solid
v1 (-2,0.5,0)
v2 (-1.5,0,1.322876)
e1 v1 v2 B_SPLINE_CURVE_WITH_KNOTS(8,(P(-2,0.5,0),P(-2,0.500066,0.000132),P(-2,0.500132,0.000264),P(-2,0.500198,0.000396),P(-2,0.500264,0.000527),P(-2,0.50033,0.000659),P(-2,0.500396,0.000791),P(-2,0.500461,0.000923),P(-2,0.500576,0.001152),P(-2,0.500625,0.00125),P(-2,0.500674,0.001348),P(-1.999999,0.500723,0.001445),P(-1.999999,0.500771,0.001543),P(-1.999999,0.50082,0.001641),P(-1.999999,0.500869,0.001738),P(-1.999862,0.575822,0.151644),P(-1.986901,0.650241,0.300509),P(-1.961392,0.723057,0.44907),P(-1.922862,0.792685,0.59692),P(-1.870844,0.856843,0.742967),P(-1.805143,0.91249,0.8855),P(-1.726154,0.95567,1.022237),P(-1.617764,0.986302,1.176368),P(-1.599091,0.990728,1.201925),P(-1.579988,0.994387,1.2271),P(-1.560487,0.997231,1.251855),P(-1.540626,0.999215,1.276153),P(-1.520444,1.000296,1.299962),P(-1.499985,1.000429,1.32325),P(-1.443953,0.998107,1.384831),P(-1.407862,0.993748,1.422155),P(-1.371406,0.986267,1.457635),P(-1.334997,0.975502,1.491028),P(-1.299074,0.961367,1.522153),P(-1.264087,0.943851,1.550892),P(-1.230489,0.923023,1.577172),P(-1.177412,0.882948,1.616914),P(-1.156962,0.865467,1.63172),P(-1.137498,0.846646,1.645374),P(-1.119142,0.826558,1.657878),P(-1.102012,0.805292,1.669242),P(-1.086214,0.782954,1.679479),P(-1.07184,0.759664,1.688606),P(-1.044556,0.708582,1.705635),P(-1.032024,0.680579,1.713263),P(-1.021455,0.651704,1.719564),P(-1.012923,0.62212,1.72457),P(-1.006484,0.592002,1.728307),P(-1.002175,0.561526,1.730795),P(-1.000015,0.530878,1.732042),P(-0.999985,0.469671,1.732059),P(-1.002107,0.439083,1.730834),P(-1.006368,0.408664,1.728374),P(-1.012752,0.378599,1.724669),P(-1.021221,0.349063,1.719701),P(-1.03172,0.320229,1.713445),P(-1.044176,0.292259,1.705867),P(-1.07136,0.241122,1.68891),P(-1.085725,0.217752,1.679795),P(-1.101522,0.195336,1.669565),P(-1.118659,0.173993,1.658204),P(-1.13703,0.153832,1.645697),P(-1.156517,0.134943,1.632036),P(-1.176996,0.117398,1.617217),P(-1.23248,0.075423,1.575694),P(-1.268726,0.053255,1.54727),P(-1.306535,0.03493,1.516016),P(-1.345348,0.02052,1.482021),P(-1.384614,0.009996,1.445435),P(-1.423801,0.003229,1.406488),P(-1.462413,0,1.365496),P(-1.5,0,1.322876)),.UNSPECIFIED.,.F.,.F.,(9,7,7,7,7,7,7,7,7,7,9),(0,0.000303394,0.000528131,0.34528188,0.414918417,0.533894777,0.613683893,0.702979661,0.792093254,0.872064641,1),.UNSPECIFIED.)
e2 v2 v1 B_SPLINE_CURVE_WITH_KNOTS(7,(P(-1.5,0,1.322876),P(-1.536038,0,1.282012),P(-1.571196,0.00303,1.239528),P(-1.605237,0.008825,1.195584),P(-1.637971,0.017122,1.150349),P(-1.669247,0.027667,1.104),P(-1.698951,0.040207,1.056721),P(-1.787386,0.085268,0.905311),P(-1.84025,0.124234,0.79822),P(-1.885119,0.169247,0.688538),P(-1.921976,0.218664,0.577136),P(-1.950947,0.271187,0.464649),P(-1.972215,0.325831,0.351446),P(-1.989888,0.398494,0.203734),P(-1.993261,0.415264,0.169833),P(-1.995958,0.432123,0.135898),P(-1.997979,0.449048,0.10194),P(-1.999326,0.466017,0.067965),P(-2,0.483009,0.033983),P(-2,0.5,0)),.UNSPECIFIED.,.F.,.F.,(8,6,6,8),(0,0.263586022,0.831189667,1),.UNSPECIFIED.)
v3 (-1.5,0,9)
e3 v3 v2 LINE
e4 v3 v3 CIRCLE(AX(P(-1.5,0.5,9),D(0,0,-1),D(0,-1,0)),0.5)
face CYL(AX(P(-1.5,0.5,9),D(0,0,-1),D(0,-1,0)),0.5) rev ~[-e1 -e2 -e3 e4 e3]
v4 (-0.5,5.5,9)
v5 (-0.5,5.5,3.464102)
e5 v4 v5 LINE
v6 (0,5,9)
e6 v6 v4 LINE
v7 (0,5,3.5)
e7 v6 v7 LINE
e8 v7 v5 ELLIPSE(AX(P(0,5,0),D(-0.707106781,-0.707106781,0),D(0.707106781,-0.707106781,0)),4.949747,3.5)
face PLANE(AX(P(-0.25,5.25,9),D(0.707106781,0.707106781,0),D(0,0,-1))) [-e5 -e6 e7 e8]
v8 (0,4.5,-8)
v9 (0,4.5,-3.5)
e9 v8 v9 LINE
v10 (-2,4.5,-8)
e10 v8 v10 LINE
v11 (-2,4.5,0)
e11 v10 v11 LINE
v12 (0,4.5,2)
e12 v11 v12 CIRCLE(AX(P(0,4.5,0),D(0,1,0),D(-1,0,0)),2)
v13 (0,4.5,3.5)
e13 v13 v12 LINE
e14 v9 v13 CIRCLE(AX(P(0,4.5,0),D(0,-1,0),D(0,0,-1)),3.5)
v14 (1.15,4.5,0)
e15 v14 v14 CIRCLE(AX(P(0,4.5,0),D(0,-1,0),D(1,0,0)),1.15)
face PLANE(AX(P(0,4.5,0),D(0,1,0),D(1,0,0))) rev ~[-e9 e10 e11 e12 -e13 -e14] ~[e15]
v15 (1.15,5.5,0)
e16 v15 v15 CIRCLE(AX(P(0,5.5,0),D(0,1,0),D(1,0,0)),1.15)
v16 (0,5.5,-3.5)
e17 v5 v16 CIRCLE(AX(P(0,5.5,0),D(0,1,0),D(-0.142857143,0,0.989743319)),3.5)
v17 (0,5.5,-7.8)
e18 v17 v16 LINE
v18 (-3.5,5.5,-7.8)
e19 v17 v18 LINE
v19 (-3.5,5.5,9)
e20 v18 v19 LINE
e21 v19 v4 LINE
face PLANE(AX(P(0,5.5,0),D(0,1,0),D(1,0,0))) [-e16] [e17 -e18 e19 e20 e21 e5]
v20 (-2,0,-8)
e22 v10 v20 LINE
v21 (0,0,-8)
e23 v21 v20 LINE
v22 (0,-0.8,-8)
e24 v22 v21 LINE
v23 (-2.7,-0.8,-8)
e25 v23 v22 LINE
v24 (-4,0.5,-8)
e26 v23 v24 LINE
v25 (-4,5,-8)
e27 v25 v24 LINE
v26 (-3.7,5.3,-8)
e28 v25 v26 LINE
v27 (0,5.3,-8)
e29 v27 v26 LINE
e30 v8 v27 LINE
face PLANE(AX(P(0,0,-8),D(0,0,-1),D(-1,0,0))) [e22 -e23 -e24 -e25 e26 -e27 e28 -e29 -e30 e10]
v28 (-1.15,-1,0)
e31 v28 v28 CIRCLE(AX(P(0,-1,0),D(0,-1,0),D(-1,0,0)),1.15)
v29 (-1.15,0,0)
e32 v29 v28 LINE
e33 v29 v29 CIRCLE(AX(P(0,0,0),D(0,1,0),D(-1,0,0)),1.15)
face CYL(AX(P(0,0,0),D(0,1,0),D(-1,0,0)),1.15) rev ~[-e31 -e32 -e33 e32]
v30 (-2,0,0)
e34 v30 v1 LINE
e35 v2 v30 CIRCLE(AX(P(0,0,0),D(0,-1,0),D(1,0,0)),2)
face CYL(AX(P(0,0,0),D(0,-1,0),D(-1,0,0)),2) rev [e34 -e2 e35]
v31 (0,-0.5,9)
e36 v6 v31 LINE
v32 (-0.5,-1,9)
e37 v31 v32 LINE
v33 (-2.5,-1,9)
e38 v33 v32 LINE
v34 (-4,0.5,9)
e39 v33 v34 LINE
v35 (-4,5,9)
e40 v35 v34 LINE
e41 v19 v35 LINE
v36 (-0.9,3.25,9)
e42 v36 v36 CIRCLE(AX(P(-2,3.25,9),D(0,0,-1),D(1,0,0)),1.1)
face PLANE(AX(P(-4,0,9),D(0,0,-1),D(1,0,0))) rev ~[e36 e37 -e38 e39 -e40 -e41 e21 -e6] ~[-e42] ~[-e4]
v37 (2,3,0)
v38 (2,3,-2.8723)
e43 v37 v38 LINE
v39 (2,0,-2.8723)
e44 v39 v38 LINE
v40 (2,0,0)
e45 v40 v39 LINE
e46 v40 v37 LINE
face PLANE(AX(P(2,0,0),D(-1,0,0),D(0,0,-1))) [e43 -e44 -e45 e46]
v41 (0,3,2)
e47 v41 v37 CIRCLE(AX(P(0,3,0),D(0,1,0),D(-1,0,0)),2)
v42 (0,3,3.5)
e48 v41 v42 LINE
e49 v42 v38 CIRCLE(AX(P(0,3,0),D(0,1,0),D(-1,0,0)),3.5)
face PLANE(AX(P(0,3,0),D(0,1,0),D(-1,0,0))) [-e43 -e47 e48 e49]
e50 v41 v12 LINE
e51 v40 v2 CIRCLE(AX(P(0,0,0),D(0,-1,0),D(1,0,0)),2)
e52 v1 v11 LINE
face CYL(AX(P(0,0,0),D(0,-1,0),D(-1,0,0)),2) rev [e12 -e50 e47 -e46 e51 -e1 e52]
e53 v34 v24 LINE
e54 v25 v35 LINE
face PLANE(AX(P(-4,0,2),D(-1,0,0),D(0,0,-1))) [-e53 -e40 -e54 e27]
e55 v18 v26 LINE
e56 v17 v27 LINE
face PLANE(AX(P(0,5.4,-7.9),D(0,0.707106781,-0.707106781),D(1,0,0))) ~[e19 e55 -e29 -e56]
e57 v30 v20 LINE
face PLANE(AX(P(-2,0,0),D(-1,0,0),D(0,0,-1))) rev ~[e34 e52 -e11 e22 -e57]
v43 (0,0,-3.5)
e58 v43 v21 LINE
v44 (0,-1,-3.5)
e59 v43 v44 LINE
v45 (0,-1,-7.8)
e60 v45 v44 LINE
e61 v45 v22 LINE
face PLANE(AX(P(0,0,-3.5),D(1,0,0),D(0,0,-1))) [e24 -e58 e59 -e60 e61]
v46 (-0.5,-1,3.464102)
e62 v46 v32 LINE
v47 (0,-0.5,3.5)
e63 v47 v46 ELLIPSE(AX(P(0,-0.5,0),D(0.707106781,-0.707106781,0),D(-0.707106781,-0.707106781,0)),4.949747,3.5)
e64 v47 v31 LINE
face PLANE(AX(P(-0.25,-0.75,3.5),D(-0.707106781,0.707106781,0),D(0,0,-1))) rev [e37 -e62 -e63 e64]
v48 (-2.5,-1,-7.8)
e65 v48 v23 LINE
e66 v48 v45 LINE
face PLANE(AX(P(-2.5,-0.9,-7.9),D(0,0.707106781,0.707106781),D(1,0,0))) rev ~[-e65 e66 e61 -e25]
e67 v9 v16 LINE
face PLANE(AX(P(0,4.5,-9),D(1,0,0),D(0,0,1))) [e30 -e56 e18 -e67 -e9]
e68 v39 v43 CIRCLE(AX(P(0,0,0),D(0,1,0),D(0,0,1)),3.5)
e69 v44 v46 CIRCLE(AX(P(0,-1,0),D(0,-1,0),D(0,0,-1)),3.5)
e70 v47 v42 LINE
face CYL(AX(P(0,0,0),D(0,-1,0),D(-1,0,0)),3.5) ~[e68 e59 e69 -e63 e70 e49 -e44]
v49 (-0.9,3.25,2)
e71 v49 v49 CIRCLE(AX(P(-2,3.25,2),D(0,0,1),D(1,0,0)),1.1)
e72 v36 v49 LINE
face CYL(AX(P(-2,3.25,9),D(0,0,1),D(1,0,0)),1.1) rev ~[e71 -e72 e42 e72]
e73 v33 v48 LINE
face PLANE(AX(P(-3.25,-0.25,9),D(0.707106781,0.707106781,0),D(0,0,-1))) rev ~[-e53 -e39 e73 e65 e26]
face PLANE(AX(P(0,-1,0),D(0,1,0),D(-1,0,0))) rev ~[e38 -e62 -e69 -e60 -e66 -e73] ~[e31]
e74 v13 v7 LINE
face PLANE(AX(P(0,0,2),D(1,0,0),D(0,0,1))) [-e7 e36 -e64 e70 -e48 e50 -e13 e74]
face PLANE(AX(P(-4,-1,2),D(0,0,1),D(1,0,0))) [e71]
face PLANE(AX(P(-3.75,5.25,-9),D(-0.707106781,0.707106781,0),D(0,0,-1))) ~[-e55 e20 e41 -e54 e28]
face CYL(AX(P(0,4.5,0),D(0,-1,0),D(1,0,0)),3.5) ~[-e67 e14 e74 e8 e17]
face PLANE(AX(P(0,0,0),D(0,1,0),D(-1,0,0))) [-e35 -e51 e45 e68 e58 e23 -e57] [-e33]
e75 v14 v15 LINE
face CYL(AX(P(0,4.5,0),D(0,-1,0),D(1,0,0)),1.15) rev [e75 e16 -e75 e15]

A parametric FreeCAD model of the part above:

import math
import FreeCAD as App
import Part
import Sketcher

V = App.Vector
Q = App.Units.Quantity


def edges_at(feature, points):
    """Names of the edges that pass closest to the given points."""
    edges = feature.Shape.Edges
    near = lambda p: min(range(len(edges)), key=lambda i: edges[i].distToShape(Part.Vertex(*p))[0])
    return sorted({f"Edge{near(p) + 1}" for p in points})


def add_polygon(sketch, points):
    """Adds a closed chain of lines whose ends are joined by coincident constraints."""
    first, n = sketch.GeometryCount, len(points)
    for a, b in zip(points, points[1:] + points[:1]):
        sketch.addGeometry(Part.LineSegment(App.Vector(*a, 0), App.Vector(*b, 0)), False)
    for i in range(n):
        sketch.addConstraint(Sketcher.Constraint("Coincident", first + i, 2, first + (i + 1) % n, 1))

doc = App.newDocument("Part")
params = doc.addObject("Spreadsheet::Sheet", "Params")
for row, (alias, value) in enumerate([
    ("sketch1_radius", "2 mm"),
    ("sketch1_radius2", "3.5 mm"),
    ("pad1_length", "3 mm"),
    ("sketch2_radius", "2 mm"),
    ("sketch2_width", "4 mm"),
    ("sketch2_height", "9 mm"),
    ("sketch2_height2", "7 mm"),
    ("pad2_length", "4.5 mm"),
    ("sketch3_diameter", "2.3 mm"),
    ("sketch3_radius", "3.5 mm"),
    ("sketch3_width", "4 mm"),
    ("pad3_length", "1 mm"),
    ("sketch4_diameter", "2.3 mm"),
    ("sketch4_radius", "3.5 mm"),
    ("sketch4_width", "4 mm"),
    ("pad4_length", "1 mm"),
    ("sketch5_diameter", "2.2 mm"),
    ("pocket1_length", "7 mm"),
    ("sketch6_diameter", "1 mm"),
    ("hole_diameter", "1 mm"),
    ("chamfer_size", "0.5 mm"),
    ("chamfer2_size", "1.5 mm"),
    ("sketch7_width", "4 mm"),
    ("sketch7_height", "6.5 mm"),
    ("pocket2_length", "1 mm"),
    ("chamfer3_size", "0.2 mm"),
], start=1):
    params.set(f"A{row}", alias)
    params.set(f"B{row}", "=" + value)
    params.setAlias(f"B{row}", alias)

body = doc.addObject("PartDesign::Body", "Body")

# Sketch on XZ plane
sketch1 = body.newObject("Sketcher::SketchObject", "Sketch")
sketch1.AttachmentSupport = (doc.getObject("XZ_Plane"), [""])
sketch1.MapMode = "FlatFace"
sketch1.addGeometry([
    Part.ArcOfCircle(Part.Circle(V(0, 0, 0), V(0, 0, 1), 2), math.radians(0), math.radians(90)),
    Part.LineSegment(V(0, 2, 0), V(0, 3.5, 0)),
    Part.ArcOfCircle(Part.Circle(V(0, 0, 0), V(0, 0, 1), 3.5), math.radians(-55), math.radians(90)),
    Part.LineSegment(V(2, -2.9, 0), V(2, 0, 0)),
], False)
sketch1.addConstraint([
    Sketcher.Constraint("Coincident", 0, 2, 1, 1),
    Sketcher.Constraint("Coincident", 1, 2, 2, 2),
    Sketcher.Constraint("Coincident", 2, 1, 3, 1),
    Sketcher.Constraint("Tangent", 3, 2, 0, 1),
    Sketcher.Constraint("Vertical", 1),
    Sketcher.Constraint("Vertical", 3),
    Sketcher.Constraint("Coincident", 0, 3, -1, 1),
    Sketcher.Constraint("Coincident", 2, 3, -1, 1),
    Sketcher.Constraint("PointOnObject", 0, 2, -2),
    Sketcher.Constraint("Radius", 0, Q("2 mm")),
    Sketcher.Constraint("Radius", 2, Q("3.5 mm")),
])
sketch1.setExpression("Constraints[9]", "Params.sketch1_radius")
sketch1.setExpression("Constraints[10]", "Params.sketch1_radius2")
pad1 = body.newObject("PartDesign::Pad", "Pad")
pad1.Profile = sketch1
pad1.setExpression("Length", "Params.pad1_length")
pad1.Reversed = True

# Sketch on XZ plane
sketch2 = body.newObject("Sketcher::SketchObject", "Sketch001")
sketch2.AttachmentSupport = (doc.getObject("XZ_Plane"), [""])
sketch2.MapMode = "FlatFace"
sketch2.addGeometry([
    Part.LineSegment(V(-2, 0, 0), V(-2, -9, 0)),  # 0
    Part.LineSegment(V(-2, -9, 0), V(-4, -9, 0)),  # 1
    Part.LineSegment(V(-4, -9, 0), V(-4, 9, 0)),  # 2
    Part.LineSegment(V(-4, 9, 0), V(0, 9, 0)),  # 3
    Part.LineSegment(V(0, 9, 0), V(0, 2, 0)),  # 4
    Part.ArcOfCircle(Part.Circle(V(0, 0, 0), V(0, 0, 1), 2), math.radians(90), math.radians(180)),  # 5
], False)
sketch2.addConstraint([
    Sketcher.Constraint("Coincident", 0, 2, 1, 1),
    Sketcher.Constraint("Coincident", 1, 2, 2, 1),
    Sketcher.Constraint("Coincident", 2, 2, 3, 1),
    Sketcher.Constraint("Coincident", 3, 2, 4, 1),
    Sketcher.Constraint("Coincident", 4, 2, 5, 1),
    Sketcher.Constraint("Tangent", 5, 2, 0, 1),
    Sketcher.Constraint("Vertical", 0),
    Sketcher.Constraint("Horizontal", 1),
    Sketcher.Constraint("Vertical", 2),
    Sketcher.Constraint("Horizontal", 3),
    Sketcher.Constraint("Vertical", 4),
    Sketcher.Constraint("Coincident", 5, 3, -1, 1),
    Sketcher.Constraint("PointOnObject", 3, 2, -2),
    Sketcher.Constraint("Radius", 5, Q("2 mm")),
    Sketcher.Constraint("DistanceX", 3, 1, 3, 2, Q("4 mm")),
    Sketcher.Constraint("DistanceY", 0, 2, 0, 1, Q("9 mm")),
    Sketcher.Constraint("DistanceY", 4, 2, 4, 1, Q("7 mm")),
])
sketch2.setExpression("Constraints[13]", "Params.sketch2_radius")
sketch2.setExpression("Constraints[14]", "Params.sketch2_width")
sketch2.setExpression("Constraints[15]", "Params.sketch2_height")
sketch2.setExpression("Constraints[16]", "Params.sketch2_height2")
pad2 = body.newObject("PartDesign::Pad", "Pad001")
pad2.Profile = sketch2
pad2.setExpression("Length", "Params.pad2_length")
pad2.Reversed = True

# Sketch on XZ plane
sketch3 = body.newObject("Sketcher::SketchObject", "Sketch002")
sketch3.AttachmentSupport = (doc.getObject("XZ_Plane"), [""])
sketch3.MapMode = "FlatFace"
sketch3.addGeometry([
    Part.LineSegment(V(0, -3.5, 0), V(0, -9, 0)),  # 0
    Part.LineSegment(V(0, -9, 0), V(-4, -9, 0)),  # 1
    Part.LineSegment(V(-4, -9, 0), V(-4, 9, 0)),  # 2
    Part.LineSegment(V(-4, 9, 0), V(0, 9, 0)),  # 3
    Part.LineSegment(V(0, 9, 0), V(0, 3.5, 0)),  # 4
    Part.ArcOfCircle(Part.Circle(V(0, 0, 0), V(0, 0, 1), 3.5), math.radians(-90), math.radians(90)),  # 5
    Part.Circle(V(0, 0, 0), V(0, 0, 1), 1.1),  # 6
], False)
sketch3.addConstraint([
    Sketcher.Constraint("Coincident", 0, 2, 1, 1),
    Sketcher.Constraint("Coincident", 1, 2, 2, 1),
    Sketcher.Constraint("Coincident", 2, 2, 3, 1),
    Sketcher.Constraint("Coincident", 3, 2, 4, 1),
    Sketcher.Constraint("Coincident", 4, 2, 5, 2),
    Sketcher.Constraint("Coincident", 5, 1, 0, 1),
    Sketcher.Constraint("Vertical", 0),
    Sketcher.Constraint("Horizontal", 1),
    Sketcher.Constraint("Vertical", 2),
    Sketcher.Constraint("Horizontal", 3),
    Sketcher.Constraint("Vertical", 4),
    Sketcher.Constraint("Coincident", 5, 3, -1, 1),
    Sketcher.Constraint("Coincident", 6, 3, -1, 1),
    Sketcher.Constraint("Symmetric", 0, 2, 3, 2, -1, 1),
    Sketcher.Constraint("PointOnObject", 0, 2, -2),
    Sketcher.Constraint("Diameter", 6, Q("2.3 mm")),
    Sketcher.Constraint("Radius", 5, Q("3.5 mm")),
    Sketcher.Constraint("DistanceX", 1, 2, 1, 1, Q("4 mm")),
    Sketcher.Constraint("DistanceY", 0, 2, -1, 1, Q("9 mm")),
])
sketch3.setExpression("Constraints[15]", "Params.sketch3_diameter")
sketch3.setExpression("Constraints[16]", "Params.sketch3_radius")
sketch3.setExpression("Constraints[17]", "Params.sketch3_width")
pad3 = body.newObject("PartDesign::Pad", "Pad002")
pad3.Profile = sketch3
pad3.setExpression("Length", "Params.pad3_length")

# Sketch on XZ plane
sketch4 = body.newObject("Sketcher::SketchObject", "Sketch003")
sketch4.AttachmentSupport = (doc.getObject("XZ_Plane"), [""])
sketch4.MapMode = "FlatFace"
sketch4.AttachmentOffset = App.Placement(V(0, 0, -4.5), App.Rotation())
sketch4.addGeometry([
    Part.LineSegment(V(0, -3.5, 0), V(0, -9, 0)),  # 0
    Part.LineSegment(V(0, -9, 0), V(-4, -9, 0)),  # 1
    Part.LineSegment(V(-4, -9, 0), V(-4, 9, 0)),  # 2
    Part.LineSegment(V(-4, 9, 0), V(0, 9, 0)),  # 3
    Part.LineSegment(V(0, 9, 0), V(0, 3.5, 0)),  # 4
    Part.ArcOfCircle(Part.Circle(V(0, 0, 0), V(0, 0, 1), 3.5), math.radians(-90), math.radians(90)),  # 5
    Part.Circle(V(0, 0, 0), V(0, 0, 1), 1.1),  # 6
], False)
sketch4.addConstraint([
    Sketcher.Constraint("Coincident", 0, 2, 1, 1),
    Sketcher.Constraint("Coincident", 1, 2, 2, 1),
    Sketcher.Constraint("Coincident", 2, 2, 3, 1),
    Sketcher.Constraint("Coincident", 3, 2, 4, 1),
    Sketcher.Constraint("Coincident", 4, 2, 5, 2),
    Sketcher.Constraint("Coincident", 5, 1, 0, 1),
    Sketcher.Constraint("Vertical", 0),
    Sketcher.Constraint("Horizontal", 1),
    Sketcher.Constraint("Vertical", 2),
    Sketcher.Constraint("Horizontal", 3),
    Sketcher.Constraint("Vertical", 4),
    Sketcher.Constraint("Coincident", 5, 3, -1, 1),
    Sketcher.Constraint("Coincident", 6, 3, -1, 1),
    Sketcher.Constraint("Symmetric", 0, 2, 3, 2, -1, 1),
    Sketcher.Constraint("PointOnObject", 0, 2, -2),
    Sketcher.Constraint("Diameter", 6, Q("2.3 mm")),
    Sketcher.Constraint("Radius", 5, Q("3.5 mm")),
    Sketcher.Constraint("DistanceX", 1, 2, 1, 1, Q("4 mm")),
    Sketcher.Constraint("DistanceY", 0, 2, -1, 1, Q("9 mm")),
])
sketch4.setExpression("Constraints[15]", "Params.sketch4_diameter")
sketch4.setExpression("Constraints[16]", "Params.sketch4_radius")
sketch4.setExpression("Constraints[17]", "Params.sketch4_width")
pad4 = body.newObject("PartDesign::Pad", "Pad003")
pad4.Profile = sketch4
pad4.setExpression("Length", "Params.pad4_length")
pad4.Reversed = True

# Sketch on XY plane
sketch5 = body.newObject("Sketcher::SketchObject", "Sketch004")
sketch5.AttachmentSupport = (doc.getObject("XY_Plane"), [""])
sketch5.MapMode = "FlatFace"
sketch5.AttachmentOffset = App.Placement(V(0, 0, 9), App.Rotation())
sketch5.addGeometry(Part.Circle(V(-2, 3.2, 0), V(0, 0, 1), 1.1), False)
sketch5.addConstraint([
    Sketcher.Constraint("Diameter", 0, Q("2.2 mm")),
    Sketcher.Constraint("DistanceX", 0, 3, -1, 1, Q("2 mm")),
    Sketcher.Constraint("DistanceY", -1, 1, 0, 3, Q("3.25 mm")),
])
sketch5.setExpression("Constraints[0]", "Params.sketch5_diameter")
pocket1 = body.newObject("PartDesign::Pocket", "Pocket")
pocket1.Profile = sketch5
pocket1.setExpression("Length", "Params.pocket1_length")

# Sketch on XY plane
sketch6 = body.newObject("Sketcher::SketchObject", "Sketch005")
sketch6.AttachmentSupport = (doc.getObject("XY_Plane"), [""])
sketch6.MapMode = "FlatFace"
sketch6.AttachmentOffset = App.Placement(V(0, 0, 9), App.Rotation())
sketch6.addGeometry(Part.Circle(V(-1.5, 0.5, 0), V(0, 0, 1), 0.5), False)
sketch6.addConstraint([
    Sketcher.Constraint("Diameter", 0, Q("1 mm")),
    Sketcher.Constraint("DistanceX", 0, 3, -1, 1, Q("1.5 mm")),
    Sketcher.Constraint("DistanceY", -1, 1, 0, 3, Q("0.5 mm")),
])
sketch6.setExpression("Constraints[0]", "Params.sketch6_diameter")
doc.recompute()
hole = body.newObject("PartDesign::Hole", "Hole")
hole.Profile = sketch6
hole.ThreadType = "None"
hole.setExpression("Diameter", "Params.hole_diameter")
hole.DepthType = "ThroughAll"
doc.recompute()

chamfer = body.newObject("PartDesign::Chamfer", "Chamfer")
chamfer.Base = (hole, edges_at(hole, [(0, -1, 6.25), (0, 5.5, 6.25), (-4, 5.5, 0)]))
chamfer.setExpression("Size", "Params.chamfer_size")
doc.recompute()

chamfer2 = body.newObject("PartDesign::Chamfer", "Chamfer001")
chamfer2.Base = (chamfer, edges_at(chamfer, [(-4, -1, 0)]))
chamfer2.setExpression("Size", "Params.chamfer2_size")

# Sketch on XY plane
sketch7 = body.newObject("Sketcher::SketchObject", "Sketch006")
sketch7.AttachmentSupport = (doc.getObject("XY_Plane"), [""])
sketch7.MapMode = "FlatFace"
sketch7.AttachmentOffset = App.Placement(V(0, 0, -9), App.Rotation())
add_polygon(sketch7, [(-4, 5.5), (0, 5.5), (0, -1), (-4, -1)])  # lines 0-3
sketch7.addConstraint([
    Sketcher.Constraint("Horizontal", 0),
    Sketcher.Constraint("Vertical", 1),
    Sketcher.Constraint("Horizontal", 2),
    Sketcher.Constraint("Vertical", 3),
    Sketcher.Constraint("PointOnObject", 0, 2, -2),
    Sketcher.Constraint("DistanceX", 0, 1, 0, 2, Q("4 mm")),
    Sketcher.Constraint("DistanceY", 1, 2, 1, 1, Q("6.5 mm")),
    Sketcher.Constraint("DistanceY", 1, 2, -1, 1, Q("1 mm")),
])
sketch7.setExpression("Constraints[9]", "Params.sketch7_width")
sketch7.setExpression("Constraints[10]", "Params.sketch7_height")
pocket2 = body.newObject("PartDesign::Pocket", "Pocket001")
pocket2.Profile = sketch7
pocket2.setExpression("Length", "Params.pocket2_length")
pocket2.Reversed = True
doc.recompute()

chamfer3 = body.newObject("PartDesign::Chamfer", "Chamfer002")
chamfer3.Base = (pocket2, edges_at(pocket2, [(-1.75, 5.5, -8), (-1.25, -1, -8)]))
chamfer3.setExpression("Size", "Params.chamfer3_size")

doc.recompute()
